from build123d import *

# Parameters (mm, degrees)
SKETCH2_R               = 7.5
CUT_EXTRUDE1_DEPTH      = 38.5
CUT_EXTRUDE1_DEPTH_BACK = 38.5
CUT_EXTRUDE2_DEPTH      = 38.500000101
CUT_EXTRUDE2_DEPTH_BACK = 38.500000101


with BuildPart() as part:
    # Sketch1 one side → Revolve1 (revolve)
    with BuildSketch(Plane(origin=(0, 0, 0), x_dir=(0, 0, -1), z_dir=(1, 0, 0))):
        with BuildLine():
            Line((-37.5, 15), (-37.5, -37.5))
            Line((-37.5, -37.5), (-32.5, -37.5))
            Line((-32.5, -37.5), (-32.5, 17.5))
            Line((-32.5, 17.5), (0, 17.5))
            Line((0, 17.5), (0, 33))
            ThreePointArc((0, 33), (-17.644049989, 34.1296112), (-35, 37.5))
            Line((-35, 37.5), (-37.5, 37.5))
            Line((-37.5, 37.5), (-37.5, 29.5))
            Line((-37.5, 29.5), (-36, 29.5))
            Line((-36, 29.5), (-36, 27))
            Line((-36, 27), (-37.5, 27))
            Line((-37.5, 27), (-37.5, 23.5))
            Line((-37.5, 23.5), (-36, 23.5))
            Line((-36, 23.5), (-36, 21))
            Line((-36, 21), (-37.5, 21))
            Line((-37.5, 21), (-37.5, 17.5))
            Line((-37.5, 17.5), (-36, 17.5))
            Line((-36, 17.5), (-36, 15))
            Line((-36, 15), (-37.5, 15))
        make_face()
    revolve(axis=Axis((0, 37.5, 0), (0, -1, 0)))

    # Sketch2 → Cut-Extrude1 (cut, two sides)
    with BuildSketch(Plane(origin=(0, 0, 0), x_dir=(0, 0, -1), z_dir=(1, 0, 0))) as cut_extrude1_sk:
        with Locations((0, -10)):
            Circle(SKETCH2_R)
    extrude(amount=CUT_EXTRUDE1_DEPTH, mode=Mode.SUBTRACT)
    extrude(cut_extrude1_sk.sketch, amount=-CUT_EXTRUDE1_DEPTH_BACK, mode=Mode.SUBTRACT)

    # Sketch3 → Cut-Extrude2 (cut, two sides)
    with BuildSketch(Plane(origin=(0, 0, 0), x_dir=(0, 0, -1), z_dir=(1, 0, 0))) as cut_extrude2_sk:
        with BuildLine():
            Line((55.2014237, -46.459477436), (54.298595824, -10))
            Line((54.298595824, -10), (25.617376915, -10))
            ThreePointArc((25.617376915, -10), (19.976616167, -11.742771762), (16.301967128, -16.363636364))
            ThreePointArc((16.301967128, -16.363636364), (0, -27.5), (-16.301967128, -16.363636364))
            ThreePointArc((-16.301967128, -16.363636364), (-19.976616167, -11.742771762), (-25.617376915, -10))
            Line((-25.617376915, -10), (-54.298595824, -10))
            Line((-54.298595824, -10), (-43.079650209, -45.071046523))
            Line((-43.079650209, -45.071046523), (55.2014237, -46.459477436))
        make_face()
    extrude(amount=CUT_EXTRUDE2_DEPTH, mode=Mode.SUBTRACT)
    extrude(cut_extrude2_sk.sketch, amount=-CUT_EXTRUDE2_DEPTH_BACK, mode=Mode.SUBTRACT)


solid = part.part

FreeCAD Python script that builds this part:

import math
import FreeCAD as App
import Part
import Sketcher
from FreeCAD import Vector
Q = App.Units.Quantity

doc = App.newDocument("Part")
body = doc.addObject("PartDesign::Body", "Body")

# Sketch on YZ plane
sketch1 = doc.addObject("Sketcher::SketchObject", "Sketch")
body.addObject(sketch1)
sketch1.AttachmentSupport = (doc.YZ_Plane, [""])
sketch1.MapMode = "FlatFace"
sketch1.addGeometry([
    Part.LineSegment(Vector(15, 37.5, 0), Vector(-37.5, 37.5, 0)),  # 0
    Part.LineSegment(Vector(-37.5, 37.5, 0), Vector(-37.5, 32.5, 0)),  # 1
    Part.LineSegment(Vector(-37.5, 32.5, 0), Vector(17.5, 32.5, 0)),  # 2
    Part.LineSegment(Vector(17.5, 32.5, 0), Vector(17.5, 0, 0)),  # 3
    Part.LineSegment(Vector(17.5, 0, 0), Vector(33, 0, 0)),  # 4
    Part.ArcOfCircle(Part.Circle(Vector(171.4, 0, 0), Vector(0, 0, 1), 138.4), math.radians(165.35), math.radians(180)),  # 5
    Part.LineSegment(Vector(37.5, 35, 0), Vector(37.5, 37.5, 0)),  # 6
    Part.LineSegment(Vector(37.5, 37.5, 0), Vector(29.5, 37.5, 0)),  # 7
    Part.LineSegment(Vector(29.5, 37.5, 0), Vector(29.5, 36, 0)),  # 8
    Part.LineSegment(Vector(29.5, 36, 0), Vector(27, 36, 0)),  # 9
    Part.LineSegment(Vector(27, 36, 0), Vector(27, 37.5, 0)),  # 10
    Part.LineSegment(Vector(27, 37.5, 0), Vector(23.5, 37.5, 0)),  # 11
    Part.LineSegment(Vector(23.5, 37.5, 0), Vector(23.5, 36, 0)),  # 12
    Part.LineSegment(Vector(23.5, 36, 0), Vector(21, 36, 0)),  # 13
    Part.LineSegment(Vector(21, 36, 0), Vector(21, 37.5, 0)),  # 14
    Part.LineSegment(Vector(21, 37.5, 0), Vector(17.5, 37.5, 0)),  # 15
    Part.LineSegment(Vector(17.5, 37.5, 0), Vector(17.5, 36, 0)),  # 16
    Part.LineSegment(Vector(17.5, 36, 0), Vector(15, 36, 0)),  # 17
    Part.LineSegment(Vector(15, 36, 0), Vector(15, 37.5, 0)),  # 18
], False)
sketch1.addConstraint([
    Sketcher.Constraint("Coincident", 0, 2, 1, 1),
    Sketcher.Constraint("Coincident", 1, 2, 2, 1),
    Sketcher.Constraint("Coincident", 2, 2, 3, 1),
    Sketcher.Constraint("Coincident", 3, 2, 4, 1),
    Sketcher.Constraint("Coincident", 4, 2, 5, 2),
    Sketcher.Constraint("Coincident", 5, 1, 6, 1),
    Sketcher.Constraint("Coincident", 6, 2, 7, 1),
    Sketcher.Constraint("Coincident", 7, 2, 8, 1),
    Sketcher.Constraint("Coincident", 8, 2, 9, 1),
    Sketcher.Constraint("Coincident", 9, 2, 10, 1),
    Sketcher.Constraint("Coincident", 10, 2, 11, 1),
    Sketcher.Constraint("Coincident", 11, 2, 12, 1),
    Sketcher.Constraint("Coincident", 12, 2, 13, 1),
    Sketcher.Constraint("Coincident", 13, 2, 14, 1),
    Sketcher.Constraint("Coincident", 14, 2, 15, 1),
    Sketcher.Constraint("Coincident", 15, 2, 16, 1),
    Sketcher.Constraint("Coincident", 16, 2, 17, 1),
    Sketcher.Constraint("Coincident", 17, 2, 18, 1),
    Sketcher.Constraint("Coincident", 18, 2, 0, 1),
    Sketcher.Constraint("Horizontal", 0),
    Sketcher.Constraint("Vertical", 1),
    Sketcher.Constraint("Horizontal", 2),
    Sketcher.Constraint("Vertical", 3),
    Sketcher.Constraint("Horizontal", 4),
    Sketcher.Constraint("Vertical", 6),
    Sketcher.Constraint("Horizontal", 7),
    Sketcher.Constraint("Vertical", 8),
    Sketcher.Constraint("Horizontal", 9),
    Sketcher.Constraint("Vertical", 10),
    Sketcher.Constraint("Horizontal", 11),
    Sketcher.Constraint("Vertical", 12),
    Sketcher.Constraint("Horizontal", 13),
    Sketcher.Constraint("Vertical", 14),
    Sketcher.Constraint("Horizontal", 15),
    Sketcher.Constraint("Vertical", 16),
    Sketcher.Constraint("Horizontal", 17),
    Sketcher.Constraint("Vertical", 18),
    Sketcher.Constraint("Symmetric", 0, 2, 6, 2, -2),
    Sketcher.Constraint("PointOnObject", 5, 3, -1),
    Sketcher.Constraint("PointOnObject", 3, 2, -1),
    Sketcher.Constraint("Horizontal", 7, 2, 10, 2),
    Sketcher.Constraint("Horizontal", 9, 2, 12, 2),
    Sketcher.Constraint("Horizontal", 11, 2, 14, 2),
    Sketcher.Constraint("Horizontal", 13, 2, 16, 2),
    Sketcher.Constraint("Vertical", 3, 2, 15, 2),
    Sketcher.Constraint("Equal", 9, 13),
    Sketcher.Constraint("Equal", 11, 15),
    Sketcher.Constraint("Equal", 13, 17),
    Sketcher.Constraint("Equal", 17, 6),
    Sketcher.Constraint("DistanceX", 2, 1, 2, 2, Q("55 mm")),
    Sketcher.Constraint("DistanceX", 7, 2, 7, 1, Q("8 mm")),
    Sketcher.Constraint("DistanceY", 1, 2, 1, 1, Q("5 mm")),
    Sketcher.Constraint("DistanceX", 0, 2, 0, 1, Q("52.5 mm")),
    Sketcher.Constraint("DistanceX", 4, 1, 4, 2, Q("15.5 mm")),
    Sketcher.Constraint("DistanceX", 11, 2, 11, 1, Q("3.5 mm")),
    Sketcher.Constraint("DistanceY", 3, 2, 3, 1, Q("32.5 mm")),
    Sketcher.Constraint("DistanceY", 8, 2, 8, 1, Q("1.5 mm")),
])
revolution = doc.addObject("PartDesign::Revolution", "Revolution")
body.addObject(revolution)
revolution.Profile = sketch1
revolution.ReferenceAxis = (sketch1, ["H_Axis"])
revolution.Angle = 360

# Sketch on YZ plane
sketch2 = doc.addObject("Sketcher::SketchObject", "Sketch001")
body.addObject(sketch2)
sketch2.AttachmentSupport = (doc.YZ_Plane, [""])
sketch2.MapMode = "FlatFace"
sketch2.addGeometry(Part.Circle(Vector(-10, 0, 0), Vector(0, 0, 1), 8), False)
sketch2.addConstraint([
    Sketcher.Constraint("PointOnObject", 0, 3, -1),
    Sketcher.Constraint("Diameter", 0, Q("15 mm")),
    Sketcher.Constraint("DistanceX", 0, 3, -1, 1, Q("10 mm")),
])
pocket1 = doc.addObject("PartDesign::Pocket", "Pocket")
body.addObject(pocket1)
pocket1.Profile = sketch2
pocket1.Type = "ThroughAll"
pocket1.Midplane = True

# Sketch on YZ plane
sketch3 = doc.addObject("Sketcher::SketchObject", "Sketch002")
body.addObject(sketch3)
sketch3.AttachmentSupport = (doc.YZ_Plane, [""])
sketch3.MapMode = "FlatFace"
sketch3.addGeometry([
    Part.LineSegment(Vector(-46, -55, 0), Vector(-10, -54, 0)),  # 0
    Part.LineSegment(Vector(-10, -54, 0), Vector(-10, -26, 0)),  # 1
    Part.ArcOfCircle(Part.Circle(Vector(-20, -26, 0), Vector(0, 0, 1), 10), math.radians(0), math.radians(69)),  # 2
    Part.ArcOfCircle(Part.Circle(Vector(-10, 0, 0), Vector(0, 0, 1), 18), math.radians(111), math.radians(249)),  # 3
    Part.ArcOfCircle(Part.Circle(Vector(-20, 26, 0), Vector(0, 0, 1), 10), math.radians(-69), math.radians(0)),  # 4
    Part.LineSegment(Vector(-10, 26, 0), Vector(-10, 54, 0)),  # 5
    Part.LineSegment(Vector(-10, 54, 0), Vector(-45, 43, 0)),  # 6
    Part.LineSegment(Vector(-45, 43, 0), Vector(-46, -55, 0)),  # 7
], False)
sketch3.addConstraint([
    Sketcher.Constraint("Coincident", 0, 2, 1, 1),
    Sketcher.Constraint("Tangent", 1, 2, 2, 1),
    Sketcher.Constraint("Tangent", 2, 2, 3, 2),
    Sketcher.Constraint("Tangent", 3, 1, 4, 1),
    Sketcher.Constraint("Tangent", 4, 2, 5, 1),
    Sketcher.Constraint("Coincident", 5, 2, 6, 1),
    Sketcher.Constraint("Coincident", 6, 2, 7, 1),
    Sketcher.Constraint("Coincident", 7, 2, 0, 1),
    Sketcher.Constraint("Vertical", 1),
    Sketcher.Constraint("Vertical", 5),
    Sketcher.Constraint("Equal", 2, 4),
    Sketcher.Constraint("Symmetric", 2, 3, 4, 3, -1),
    Sketcher.Constraint("Vertical", 3, 3, 0, 2),
    Sketcher.Constraint("Equal", 1, 5),
    Sketcher.Constraint("Radius", 2, Q("10 mm")),
    Sketcher.Constraint("Radius", 3, Q("17.5 mm")),
    Sketcher.Constraint("DistanceX", 2, 3, -1, 1, Q("20 mm")),
    Sketcher.Constraint("DistanceY", 1, 1, 1, 2, Q("28.681219 mm")),
    Sketcher.Constraint("Distance", 7, Q("98.290881 mm")),
    Sketcher.Constraint("DistanceY", -1, 1, 6, 2, Q("43.07965 mm")),
    Sketcher.Constraint("DistanceX", 6, 2, 3, 1, Q("28.70741 mm")),
    Sketcher.Constraint("DistanceX", 7, 2, 2, 2, Q("30.095841 mm")),
])
pocket2 = doc.addObject("PartDesign::Pocket", "Pocket001")
body.addObject(pocket2)
pocket2.Profile = sketch3
pocket2.Type = "ThroughAll"
pocket2.Midplane = True

doc.recompute()
